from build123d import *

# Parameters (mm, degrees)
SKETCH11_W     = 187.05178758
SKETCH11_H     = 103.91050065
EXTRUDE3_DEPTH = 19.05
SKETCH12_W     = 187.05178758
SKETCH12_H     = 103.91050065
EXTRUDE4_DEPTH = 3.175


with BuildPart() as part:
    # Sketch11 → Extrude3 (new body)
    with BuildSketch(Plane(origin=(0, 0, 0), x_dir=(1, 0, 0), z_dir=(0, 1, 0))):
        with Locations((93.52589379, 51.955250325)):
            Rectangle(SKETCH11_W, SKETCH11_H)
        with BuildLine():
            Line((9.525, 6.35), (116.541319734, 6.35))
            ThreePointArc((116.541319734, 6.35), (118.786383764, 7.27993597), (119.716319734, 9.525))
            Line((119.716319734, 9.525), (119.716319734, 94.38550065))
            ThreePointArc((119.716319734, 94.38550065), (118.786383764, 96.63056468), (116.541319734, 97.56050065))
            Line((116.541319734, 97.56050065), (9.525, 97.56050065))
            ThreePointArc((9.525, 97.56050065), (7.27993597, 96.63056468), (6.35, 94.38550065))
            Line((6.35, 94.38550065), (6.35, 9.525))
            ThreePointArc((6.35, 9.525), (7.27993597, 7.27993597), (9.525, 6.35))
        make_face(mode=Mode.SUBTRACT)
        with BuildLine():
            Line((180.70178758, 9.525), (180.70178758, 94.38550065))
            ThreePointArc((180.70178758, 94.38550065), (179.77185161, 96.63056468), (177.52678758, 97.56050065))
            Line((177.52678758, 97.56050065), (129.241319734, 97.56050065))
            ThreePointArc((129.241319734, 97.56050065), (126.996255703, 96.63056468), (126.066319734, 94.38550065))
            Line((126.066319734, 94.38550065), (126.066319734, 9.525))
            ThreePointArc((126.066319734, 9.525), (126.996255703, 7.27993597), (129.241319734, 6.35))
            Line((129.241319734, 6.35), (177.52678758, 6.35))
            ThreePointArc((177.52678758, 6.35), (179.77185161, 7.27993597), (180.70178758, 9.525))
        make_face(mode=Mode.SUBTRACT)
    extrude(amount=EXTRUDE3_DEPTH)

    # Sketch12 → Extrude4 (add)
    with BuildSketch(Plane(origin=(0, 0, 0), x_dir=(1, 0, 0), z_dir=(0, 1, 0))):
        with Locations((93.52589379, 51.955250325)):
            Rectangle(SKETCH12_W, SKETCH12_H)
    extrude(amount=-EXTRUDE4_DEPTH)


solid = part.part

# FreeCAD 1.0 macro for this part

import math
import FreeCAD as App
import Part
import Sketcher

V = App.Vector
Q = App.Units.Quantity

doc = App.newDocument("Part")
body = doc.addObject("PartDesign::Body", "Body")

sketch1 = body.newObject("Sketcher::SketchObject", "Sketch")
sketch1.AttachmentSupport = (doc.getObject("XZ_Plane"), [""])
sketch1.MapMode = "FlatFace"
sketch1.addGeometry([
    Part.LineSegment(V(0, -103.9, 0), V(0, 0, 0)),
    Part.LineSegment(V(0, 0, 0), V(187.1, 0, 0)),
    Part.LineSegment(V(187.1, 0, 0), V(187.1, -103.9, 0)),
    Part.LineSegment(V(187.1, -103.9, 0), V(0, -103.9, 0)),
    Part.LineSegment(V(116.5, -6.3, 0), V(9.5, -6.3, 0)),
    Part.ArcOfCircle(Part.Circle(V(9.5, -9.5, 0), V(0, 0, 1), 3.2), math.radians(90), math.radians(180)),
    Part.LineSegment(V(6.3, -9.5, 0), V(6.3, -94.4, 0)),
    Part.ArcOfCircle(Part.Circle(V(9.5, -94.4, 0), V(0, 0, 1), 3.2), math.radians(-180), math.radians(-90)),
    Part.LineSegment(V(9.5, -97.6, 0), V(116.5, -97.6, 0)),
    Part.ArcOfCircle(Part.Circle(V(116.5, -94.4, 0), V(0, 0, 1), 3.2), math.radians(-90), math.radians(0)),
    Part.LineSegment(V(119.7, -94.4, 0), V(119.7, -9.5, 0)),
    Part.ArcOfCircle(Part.Circle(V(116.5, -9.5, 0), V(0, 0, 1), 3.2), math.radians(0), math.radians(90)),
    Part.LineSegment(V(180.7, -94.4, 0), V(180.7, -9.5, 0)),
    Part.ArcOfCircle(Part.Circle(V(177.5, -9.5, 0), V(0, 0, 1), 3.2), math.radians(0), math.radians(90)),
    Part.LineSegment(V(177.5, -6.3, 0), V(129.2, -6.3, 0)),
    Part.ArcOfCircle(Part.Circle(V(129.2, -9.5, 0), V(0, 0, 1), 3.2), math.radians(90), math.radians(180)),
    Part.LineSegment(V(126.1, -9.5, 0), V(126.1, -94.4, 0)),
    Part.ArcOfCircle(Part.Circle(V(129.2, -94.4, 0), V(0, 0, 1), 3.2), math.radians(180), math.radians(270)),
    Part.LineSegment(V(129.2, -97.6, 0), V(177.5, -97.6, 0)),
    Part.ArcOfCircle(Part.Circle(V(177.5, -94.4, 0), V(0, 0, 1), 3.2), math.radians(-90), math.radians(0)),
], False)
sketch1.addConstraint([
    Sketcher.Constraint("Coincident", 0, 2, 1, 1),
    Sketcher.Constraint("Coincident", 1, 2, 2, 1),
    Sketcher.Constraint("Coincident", 2, 2, 3, 1),
    Sketcher.Constraint("Coincident", 3, 2, 0, 1),
    Sketcher.Constraint("Tangent", 4, 2, 5, 1),
    Sketcher.Constraint("Tangent", 5, 2, 6, 1),
    Sketcher.Constraint("Tangent", 6, 2, 7, 1),
    Sketcher.Constraint("Tangent", 7, 2, 8, 1),
    Sketcher.Constraint("Tangent", 8, 2, 9, 1),
    Sketcher.Constraint("Tangent", 9, 2, 10, 1),
    Sketcher.Constraint("Tangent", 10, 2, 11, 1),
    Sketcher.Constraint("Tangent", 11, 2, 4, 1),
    Sketcher.Constraint("Tangent", 12, 2, 13, 1),
    Sketcher.Constraint("Tangent", 13, 2, 14, 1),
    Sketcher.Constraint("Tangent", 14, 2, 15, 1),
    Sketcher.Constraint("Tangent", 15, 2, 16, 1),
    Sketcher.Constraint("Tangent", 16, 2, 17, 1),
    Sketcher.Constraint("Tangent", 17, 2, 18, 1),
    Sketcher.Constraint("Tangent", 18, 2, 19, 1),
    Sketcher.Constraint("Tangent", 19, 2, 12, 1),
    Sketcher.Constraint("Vertical", 0),
    Sketcher.Constraint("Horizontal", 1),
    Sketcher.Constraint("Vertical", 2),
    Sketcher.Constraint("Horizontal", 3),
    Sketcher.Constraint("Horizontal", 4),
    Sketcher.Constraint("Vertical", 6),
    Sketcher.Constraint("Horizontal", 8),
    Sketcher.Constraint("Vertical", 10),
    Sketcher.Constraint("Vertical", 12),
    Sketcher.Constraint("Horizontal", 14),
    Sketcher.Constraint("Vertical", 16),
    Sketcher.Constraint("Horizontal", 18),
    Sketcher.Constraint("Coincident", 0, 2, -1, 1),
    Sketcher.Constraint("Equal", 5, 7),
    Sketcher.Constraint("Equal", 7, 9),
    Sketcher.Constraint("Equal", 9, 11),
    Sketcher.Constraint("Equal", 11, 13),
    Sketcher.Constraint("Equal", 13, 15),
    Sketcher.Constraint("Equal", 15, 17),
    Sketcher.Constraint("Equal", 17, 19),
    Sketcher.Constraint("Horizontal", 11, 3, 13, 3),
    Sketcher.Constraint("Horizontal", 9, 3, 17, 3),
    Sketcher.Constraint("Radius", 5, Q("0.125 in")),
    Sketcher.Constraint("DistanceX", 11, 3, 15, 3, Q("0.5 in")),
    Sketcher.Constraint("DistanceY", 4, 2, -1, 1, Q("0.25 in")),
    Sketcher.Constraint("DistanceX", -1, 1, 5, 2, Q("0.25 in")),
    Sketcher.Constraint("DistanceY", 3, 2, 7, 2, Q("0.25 in")),
    Sketcher.Constraint("DistanceX", 12, 2, 1, 2, Q("0.25 in")),
    Sketcher.Constraint("DistanceY", 0, 1, 0, 2, Q("103.910501 mm")),
    Sketcher.Constraint("DistanceX", 4, 2, 4, 1, Q("107.01632 mm")),
    Sketcher.Constraint("DistanceX", 1, 1, 1, 2, Q("187.051788 mm")),
])
pad1 = body.newObject("PartDesign::Pad", "Pad")
pad1.Profile = sketch1
pad1.Length = Q("0.75 in")
pad1.Reversed = True

sketch2 = body.newObject("Sketcher::SketchObject", "Sketch001")
sketch2.AttachmentSupport = (doc.getObject("XZ_Plane"), [""])
sketch2.MapMode = "FlatFace"
sketch2.addGeometry([
    Part.LineSegment(V(0, -104, 0), V(0, 0, 0)),
    Part.LineSegment(V(0, 0, 0), V(187, 0, 0)),
    Part.LineSegment(V(187, 0, 0), V(187, -104, 0)),
    Part.LineSegment(V(187, -104, 0), V(0, -104, 0)),
], False)
sketch2.addConstraint([
    Sketcher.Constraint("Coincident", 0, 2, 1, 1),
    Sketcher.Constraint("Coincident", 1, 2, 2, 1),
    Sketcher.Constraint("Coincident", 2, 2, 3, 1),
    Sketcher.Constraint("Coincident", 3, 2, 0, 1),
    Sketcher.Constraint("Vertical", 0),
    Sketcher.Constraint("Horizontal", 1),
    Sketcher.Constraint("Vertical", 2),
    Sketcher.Constraint("Horizontal", 3),
    Sketcher.Constraint("Coincident", 0, 2, -1, 1),
    Sketcher.Constraint("DistanceY", 0, 1, 0, 2, Q("103.910501 mm")),
    Sketcher.Constraint("DistanceX", 1, 1, 1, 2, Q("187.051788 mm")),
])
pad2 = body.newObject("PartDesign::Pad", "Pad001")
pad2.Profile = sketch2
pad2.Length = Q("0.125 in")

doc.recompute()
